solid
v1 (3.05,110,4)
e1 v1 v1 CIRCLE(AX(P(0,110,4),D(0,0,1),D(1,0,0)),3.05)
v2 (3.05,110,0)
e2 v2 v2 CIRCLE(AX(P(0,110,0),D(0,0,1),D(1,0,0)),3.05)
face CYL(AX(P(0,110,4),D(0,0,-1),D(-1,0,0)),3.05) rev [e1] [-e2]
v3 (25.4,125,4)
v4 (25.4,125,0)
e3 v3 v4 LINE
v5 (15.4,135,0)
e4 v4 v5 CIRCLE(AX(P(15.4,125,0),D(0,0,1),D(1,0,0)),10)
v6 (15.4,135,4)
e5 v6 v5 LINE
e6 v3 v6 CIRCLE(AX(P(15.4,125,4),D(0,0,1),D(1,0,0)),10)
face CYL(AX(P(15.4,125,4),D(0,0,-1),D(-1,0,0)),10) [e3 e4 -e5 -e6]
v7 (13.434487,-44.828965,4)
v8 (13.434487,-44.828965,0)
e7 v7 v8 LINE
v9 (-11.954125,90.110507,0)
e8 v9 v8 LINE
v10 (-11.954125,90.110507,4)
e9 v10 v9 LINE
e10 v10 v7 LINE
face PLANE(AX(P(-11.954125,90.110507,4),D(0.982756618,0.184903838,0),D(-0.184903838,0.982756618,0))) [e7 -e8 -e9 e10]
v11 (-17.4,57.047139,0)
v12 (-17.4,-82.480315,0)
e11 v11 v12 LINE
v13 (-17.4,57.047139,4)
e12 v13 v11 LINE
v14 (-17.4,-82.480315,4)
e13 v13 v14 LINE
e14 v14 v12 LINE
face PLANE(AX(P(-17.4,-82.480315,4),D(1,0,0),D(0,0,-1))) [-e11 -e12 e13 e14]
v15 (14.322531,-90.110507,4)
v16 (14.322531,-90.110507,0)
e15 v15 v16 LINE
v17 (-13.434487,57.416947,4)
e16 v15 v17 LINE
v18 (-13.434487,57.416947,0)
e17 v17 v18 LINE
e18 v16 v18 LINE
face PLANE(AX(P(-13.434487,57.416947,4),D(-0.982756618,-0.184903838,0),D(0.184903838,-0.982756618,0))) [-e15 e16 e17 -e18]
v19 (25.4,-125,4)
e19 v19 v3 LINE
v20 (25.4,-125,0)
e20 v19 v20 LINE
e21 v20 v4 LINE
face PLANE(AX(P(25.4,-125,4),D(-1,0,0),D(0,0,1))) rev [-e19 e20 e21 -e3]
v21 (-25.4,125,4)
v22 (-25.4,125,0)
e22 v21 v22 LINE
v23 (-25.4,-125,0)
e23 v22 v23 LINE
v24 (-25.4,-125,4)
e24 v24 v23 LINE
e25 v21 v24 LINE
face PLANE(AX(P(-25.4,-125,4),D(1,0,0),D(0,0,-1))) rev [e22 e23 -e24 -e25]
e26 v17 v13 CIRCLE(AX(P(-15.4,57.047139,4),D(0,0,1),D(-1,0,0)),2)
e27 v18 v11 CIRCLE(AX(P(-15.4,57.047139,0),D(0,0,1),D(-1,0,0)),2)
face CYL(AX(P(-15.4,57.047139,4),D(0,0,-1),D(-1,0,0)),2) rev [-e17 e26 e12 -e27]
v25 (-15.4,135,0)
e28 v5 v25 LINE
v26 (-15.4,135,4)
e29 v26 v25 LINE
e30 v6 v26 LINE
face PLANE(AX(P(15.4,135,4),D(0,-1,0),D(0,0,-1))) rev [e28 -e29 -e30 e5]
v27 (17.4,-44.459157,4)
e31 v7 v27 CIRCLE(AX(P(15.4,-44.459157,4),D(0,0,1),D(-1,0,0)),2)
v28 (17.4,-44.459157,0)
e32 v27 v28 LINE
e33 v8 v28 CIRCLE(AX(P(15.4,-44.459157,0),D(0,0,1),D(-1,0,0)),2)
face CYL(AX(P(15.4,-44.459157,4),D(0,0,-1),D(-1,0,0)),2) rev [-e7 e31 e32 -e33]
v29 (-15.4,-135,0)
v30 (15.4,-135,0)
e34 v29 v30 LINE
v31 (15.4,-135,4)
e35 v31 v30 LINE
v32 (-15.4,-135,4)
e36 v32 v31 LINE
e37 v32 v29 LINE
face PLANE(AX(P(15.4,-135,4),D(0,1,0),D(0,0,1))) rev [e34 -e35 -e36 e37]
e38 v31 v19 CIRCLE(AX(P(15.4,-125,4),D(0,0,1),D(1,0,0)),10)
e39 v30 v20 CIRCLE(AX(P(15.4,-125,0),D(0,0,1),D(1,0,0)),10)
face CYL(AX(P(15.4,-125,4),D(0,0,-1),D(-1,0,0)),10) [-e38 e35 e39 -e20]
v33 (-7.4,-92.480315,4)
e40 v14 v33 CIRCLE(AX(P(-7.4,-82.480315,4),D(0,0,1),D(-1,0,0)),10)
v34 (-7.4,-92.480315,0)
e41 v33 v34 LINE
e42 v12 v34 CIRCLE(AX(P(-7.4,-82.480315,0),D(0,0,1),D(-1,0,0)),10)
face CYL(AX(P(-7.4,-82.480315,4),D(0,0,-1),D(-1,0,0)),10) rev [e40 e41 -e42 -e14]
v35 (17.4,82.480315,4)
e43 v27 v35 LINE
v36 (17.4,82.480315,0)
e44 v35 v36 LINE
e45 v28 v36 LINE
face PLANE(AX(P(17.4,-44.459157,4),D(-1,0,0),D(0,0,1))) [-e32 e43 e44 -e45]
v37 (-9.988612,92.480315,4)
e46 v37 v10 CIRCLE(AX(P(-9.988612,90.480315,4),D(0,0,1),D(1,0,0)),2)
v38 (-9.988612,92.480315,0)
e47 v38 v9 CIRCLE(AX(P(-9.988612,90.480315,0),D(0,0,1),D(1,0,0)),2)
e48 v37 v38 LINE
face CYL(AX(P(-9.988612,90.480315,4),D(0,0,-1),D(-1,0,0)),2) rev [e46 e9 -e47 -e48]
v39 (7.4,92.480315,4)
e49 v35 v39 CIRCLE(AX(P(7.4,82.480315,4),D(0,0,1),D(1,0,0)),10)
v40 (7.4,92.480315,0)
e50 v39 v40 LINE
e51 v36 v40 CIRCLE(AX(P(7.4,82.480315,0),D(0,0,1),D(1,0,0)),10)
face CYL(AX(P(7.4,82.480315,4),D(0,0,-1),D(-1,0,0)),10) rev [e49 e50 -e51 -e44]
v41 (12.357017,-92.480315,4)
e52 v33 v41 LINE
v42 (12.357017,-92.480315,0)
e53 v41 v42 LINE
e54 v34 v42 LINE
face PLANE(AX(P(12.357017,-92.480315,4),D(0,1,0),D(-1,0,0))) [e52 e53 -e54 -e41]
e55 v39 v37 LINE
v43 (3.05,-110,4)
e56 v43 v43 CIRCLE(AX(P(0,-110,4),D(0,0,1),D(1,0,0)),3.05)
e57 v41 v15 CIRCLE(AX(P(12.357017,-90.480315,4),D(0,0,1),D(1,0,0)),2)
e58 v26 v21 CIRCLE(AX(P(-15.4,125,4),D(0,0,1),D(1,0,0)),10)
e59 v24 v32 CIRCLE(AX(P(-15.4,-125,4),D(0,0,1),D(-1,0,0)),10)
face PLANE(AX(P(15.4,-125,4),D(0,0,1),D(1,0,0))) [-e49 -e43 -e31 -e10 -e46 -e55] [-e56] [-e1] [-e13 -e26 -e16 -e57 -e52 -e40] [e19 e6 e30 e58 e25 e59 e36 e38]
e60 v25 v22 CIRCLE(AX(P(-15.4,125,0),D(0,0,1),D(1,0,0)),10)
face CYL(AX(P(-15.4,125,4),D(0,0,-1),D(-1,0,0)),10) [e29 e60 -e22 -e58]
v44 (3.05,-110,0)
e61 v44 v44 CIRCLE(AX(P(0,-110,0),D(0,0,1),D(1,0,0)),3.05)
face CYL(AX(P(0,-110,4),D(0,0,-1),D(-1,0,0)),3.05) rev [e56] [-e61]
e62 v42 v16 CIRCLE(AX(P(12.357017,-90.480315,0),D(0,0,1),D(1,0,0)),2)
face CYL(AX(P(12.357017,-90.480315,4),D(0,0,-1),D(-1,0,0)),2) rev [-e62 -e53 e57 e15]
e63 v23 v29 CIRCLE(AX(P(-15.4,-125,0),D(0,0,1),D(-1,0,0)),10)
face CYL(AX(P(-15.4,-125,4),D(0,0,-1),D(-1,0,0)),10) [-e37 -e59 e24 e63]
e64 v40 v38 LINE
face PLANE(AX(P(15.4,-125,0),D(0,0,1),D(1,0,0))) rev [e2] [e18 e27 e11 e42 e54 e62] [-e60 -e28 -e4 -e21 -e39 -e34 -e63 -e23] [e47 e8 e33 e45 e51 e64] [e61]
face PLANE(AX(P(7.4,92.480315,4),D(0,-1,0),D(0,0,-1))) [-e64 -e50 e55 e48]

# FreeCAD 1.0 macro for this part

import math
import FreeCAD as App
import Part
import Sketcher

V = App.Vector

doc = App.newDocument("Part")
params = doc.addObject("Spreadsheet::Sheet", "Params")
for row, (alias, value) in enumerate([
    ("sketch1_radius", "10 mm"),
    ("sketch1_radius2", "2 mm"),
    ("sketch1_diameter", "6.1 mm"),
    ("sketch1_height", "250 mm"),
    ("sketch1_width", "30.8 mm"),
    ("pad1_length", "4 mm"),
], start=1):
    params.set(f"A{row}", alias)
    params.set(f"B{row}", "=" + value)
    params.setAlias(f"B{row}", alias)

body = doc.addObject("PartDesign::Body", "Body")

sketch1 = doc.addObject("Sketcher::SketchObject", "Sketch")
body.addObject(sketch1)
sketch1.AttachmentSupport = (doc.XY_Plane, [""])
sketch1.MapMode = "FlatFace"
sketch1.addGeometry(Part.LineSegment(V(-15.4, -135, 0), V(15.4, -135, 0)), False)
sketch1.addGeometry(Part.ArcOfCircle(Part.Circle(V(15.4, -125, 0), V(0, 0, 1), 10), math.radians(-90), math.radians(0)), False)
sketch1.addGeometry(Part.LineSegment(V(25.4, -125, 0), V(25.4, 125, 0)), False)
sketch1.addGeometry(Part.ArcOfCircle(Part.Circle(V(15.4, 125, 0), V(0, 0, 1), 10), math.radians(0), math.radians(90)), False)
sketch1.addGeometry(Part.LineSegment(V(15.4, 135, 0), V(-15.4, 135, 0)), False)
sketch1.addGeometry(Part.ArcOfCircle(Part.Circle(V(-15.4, 125, 0), V(0, 0, 1), 10), math.radians(90), math.radians(180)), False)
sketch1.addGeometry(Part.LineSegment(V(-25.4, 125, 0), V(-25.4, -125, 0)), False)
sketch1.addGeometry(Part.ArcOfCircle(Part.Circle(V(-15.4, -125, 0), V(0, 0, 1), 10), math.radians(180), math.radians(270)), False)
sketch1.addGeometry(Part.Circle(V(0, -110, 0), V(0, 0, 1), 3), False)
sketch1.addGeometry(Part.LineSegment(V(-13.4, 57.4, 0), V(14.3, -90.1, 0)), False)
sketch1.addGeometry(Part.ArcOfCircle(Part.Circle(V(12.4, -90.5, 0), V(0, 0, 1), 2), math.radians(-90), math.radians(11)), False)
sketch1.addGeometry(Part.LineSegment(V(12.4, -92.5, 0), V(-7.4, -92.5, 0)), False)
sketch1.addGeometry(Part.ArcOfCircle(Part.Circle(V(-7.4, -82.5, 0), V(0, 0, 1), 10), math.radians(-180), math.radians(-90)), False)
sketch1.addGeometry(Part.LineSegment(V(-17.4, -82.5, 0), V(-17.4, 57, 0)), False)
sketch1.addGeometry(Part.ArcOfCircle(Part.Circle(V(-15.4, 57, 0), V(0, 0, 1), 2), math.radians(11), math.radians(180)), False)
sketch1.addGeometry(Part.ArcOfCircle(Part.Circle(V(15.4, -44.5, 0), V(0, 0, 1), 2), math.radians(-169), math.radians(0)), False)
sketch1.addGeometry(Part.LineSegment(V(13.4, -44.8, 0), V(-12, 90.1, 0)), False)
sketch1.addGeometry(Part.ArcOfCircle(Part.Circle(V(-10, 90.5, 0), V(0, 0, 1), 2), math.radians(90), math.radians(191)), False)
sketch1.addGeometry(Part.LineSegment(V(-10, 92.5, 0), V(7.4, 92.5, 0)), False)
sketch1.addGeometry(Part.ArcOfCircle(Part.Circle(V(7.4, 82.5, 0), V(0, 0, 1), 10), math.radians(0), math.radians(90)), False)
sketch1.addGeometry(Part.LineSegment(V(17.4, 82.5, 0), V(17.4, -44.5, 0)), False)
sketch1.addGeometry(Part.Circle(V(0, 110, 0), V(0, 0, 1), 3), False)
sketch1.addConstraint(Sketcher.Constraint("Tangent", 0, 2, 1, 1))
sketch1.addConstraint(Sketcher.Constraint("Tangent", 1, 2, 2, 1))
sketch1.addConstraint(Sketcher.Constraint("Tangent", 2, 2, 3, 1))
sketch1.addConstraint(Sketcher.Constraint("Tangent", 3, 2, 4, 1))
sketch1.addConstraint(Sketcher.Constraint("Tangent", 4, 2, 5, 1))
sketch1.addConstraint(Sketcher.Constraint("Tangent", 5, 2, 6, 1))
sketch1.addConstraint(Sketcher.Constraint("Tangent", 6, 2, 7, 1))
sketch1.addConstraint(Sketcher.Constraint("Tangent", 7, 2, 0, 1))
sketch1.addConstraint(Sketcher.Constraint("Tangent", 9, 2, 10, 2))
sketch1.addConstraint(Sketcher.Constraint("Tangent", 10, 1, 11, 1))
sketch1.addConstraint(Sketcher.Constraint("Tangent", 11, 2, 12, 2))
sketch1.addConstraint(Sketcher.Constraint("Tangent", 12, 1, 13, 1))
sketch1.addConstraint(Sketcher.Constraint("Tangent", 13, 2, 14, 2))
sketch1.addConstraint(Sketcher.Constraint("Tangent", 14, 1, 9, 1))
sketch1.addConstraint(Sketcher.Constraint("Tangent", 15, 1, 16, 1))
sketch1.addConstraint(Sketcher.Constraint("Tangent", 16, 2, 17, 2))
sketch1.addConstraint(Sketcher.Constraint("Tangent", 17, 1, 18, 1))
sketch1.addConstraint(Sketcher.Constraint("Tangent", 18, 2, 19, 2))
sketch1.addConstraint(Sketcher.Constraint("Tangent", 19, 1, 20, 1))
sketch1.addConstraint(Sketcher.Constraint("Tangent", 20, 2, 15, 2))
sketch1.addConstraint(Sketcher.Constraint("Horizontal", 0))
sketch1.addConstraint(Sketcher.Constraint("Vertical", 2))
sketch1.addConstraint(Sketcher.Constraint("Horizontal", 4))
sketch1.addConstraint(Sketcher.Constraint("Vertical", 6))
sketch1.addConstraint(Sketcher.Constraint("Horizontal", 11))
sketch1.addConstraint(Sketcher.Constraint("Vertical", 13))
sketch1.addConstraint(Sketcher.Constraint("Horizontal", 18))
sketch1.addConstraint(Sketcher.Constraint("Vertical", 20))
sketch1.addConstraint(Sketcher.Constraint("Equal", 1, 3))
sketch1.addConstraint(Sketcher.Constraint("Equal", 3, 5))
sketch1.addConstraint(Sketcher.Constraint("Equal", 5, 7))
sketch1.addConstraint(Sketcher.Constraint("Equal", 7, 12))
sketch1.addConstraint(Sketcher.Constraint("Equal", 10, 14))
sketch1.addConstraint(Sketcher.Constraint("Equal", 14, 15))
sketch1.addConstraint(Sketcher.Constraint("Equal", 15, 17))
sketch1.addConstraint(Sketcher.Constraint("Equal", 12, 19))
sketch1.addConstraint(Sketcher.Constraint("Equal", 8, 21))
sketch1.addConstraint(Sketcher.Constraint("Symmetric", 1, 3, 5, 3, -1, 1))
sketch1.addConstraint(Sketcher.Constraint("Symmetric", 12, 3, 19, 3, -1, 1))
sketch1.addConstraint(Sketcher.Constraint("Symmetric", 8, 3, 21, 3, -1, 1))
sketch1.addConstraint(Sketcher.Constraint("PointOnObject", 8, 3, -2))
sketch1.addConstraint(Sketcher.Constraint("Parallel", 9, 16))
sketch1.addConstraint(Sketcher.Constraint("Vertical", 7, 3, 14, 3))
sketch1.addConstraint(Sketcher.Constraint("Radius", 1, 10.0))
sketch1.addConstraint(Sketcher.Constraint("Radius", 10, 2.0))
sketch1.addConstraint(Sketcher.Constraint("Diameter", 8, 6.1))
sketch1.addConstraint(Sketcher.Constraint("DistanceY", 2, 1, 2, 2, 250.0))
sketch1.addConstraint(Sketcher.Constraint("DistanceX", 0, 1, 0, 2, 30.8))
sketch1.addConstraint(Sketcher.Constraint("DistanceY", 8, 3, -1, 1, 110.0))
sketch1.addConstraint(Sketcher.Constraint("DistanceX", 18, 1, 18, 2, 17.388612))
sketch1.addConstraint(Sketcher.Constraint("Distance", 9, 150.115961))
sketch1.addConstraint(Sketcher.Constraint("Distance", 16, 137.307111))
sketch1.addConstraint(Sketcher.Constraint("DistanceY", -1, 1, 14, 3, 57.047139))
sketch1.setExpression("Constraints[43]", "Params.sketch1_radius")
sketch1.setExpression("Constraints[44]", "Params.sketch1_radius2")
sketch1.setExpression("Constraints[45]", "Params.sketch1_diameter")
sketch1.setExpression("Constraints[46]", "Params.sketch1_height")
sketch1.setExpression("Constraints[47]", "Params.sketch1_width")
pad1 = doc.addObject("PartDesign::Pad", "Pad")
body.addObject(pad1)
pad1.Profile = sketch1
pad1.setExpression("Length", "Params.pad1_length")

doc.recompute()
